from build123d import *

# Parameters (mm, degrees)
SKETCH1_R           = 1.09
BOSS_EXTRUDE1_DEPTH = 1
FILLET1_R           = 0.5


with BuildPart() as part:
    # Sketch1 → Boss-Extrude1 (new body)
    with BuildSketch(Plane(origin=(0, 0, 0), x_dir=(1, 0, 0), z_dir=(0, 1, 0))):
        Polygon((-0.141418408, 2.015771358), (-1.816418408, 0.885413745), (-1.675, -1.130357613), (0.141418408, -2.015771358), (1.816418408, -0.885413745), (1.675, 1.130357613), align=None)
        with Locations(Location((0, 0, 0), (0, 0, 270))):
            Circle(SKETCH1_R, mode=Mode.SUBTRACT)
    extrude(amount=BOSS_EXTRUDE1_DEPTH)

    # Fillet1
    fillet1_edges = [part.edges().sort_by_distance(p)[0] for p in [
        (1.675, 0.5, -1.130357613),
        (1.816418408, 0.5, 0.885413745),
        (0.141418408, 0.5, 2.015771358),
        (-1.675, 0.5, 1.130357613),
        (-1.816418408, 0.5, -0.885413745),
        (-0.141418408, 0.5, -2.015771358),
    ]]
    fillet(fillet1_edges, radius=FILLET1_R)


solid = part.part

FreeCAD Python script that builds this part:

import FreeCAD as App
import Part
import Sketcher

V = App.Vector
Q = App.Units.Quantity


def edges_at(feature, points):
    """Names of the edges that pass closest to the given points."""
    edges = feature.Shape.Edges
    near = lambda p: min(range(len(edges)), key=lambda i: edges[i].distToShape(Part.Vertex(*p))[0])
    return sorted({f"Edge{near(p) + 1}" for p in points})


def add_polygon(sketch, points):
    """Adds a closed chain of lines whose ends are joined by coincident constraints."""
    first, n = sketch.GeometryCount, len(points)
    for a, b in zip(points, points[1:] + points[:1]):
        sketch.addGeometry(Part.LineSegment(App.Vector(*a, 0), App.Vector(*b, 0)), False)
    for i in range(n):
        sketch.addConstraint(Sketcher.Constraint("Coincident", first + i, 2, first + (i + 1) % n, 1))

doc = App.newDocument("Part")
body = doc.addObject("PartDesign::Body", "Body")

sketch1 = body.newObject("Sketcher::SketchObject", "Sketch")
sketch1.AttachmentSupport = (doc.getObject("XZ_Plane"), [""])
sketch1.MapMode = "FlatFace"
add_polygon(sketch1, [(-0.1, -2), (-1.8, -0.9), (-1.7, 1.1), (0.1, 2), (1.8, 0.9), (1.7, -1.1)])
sketch1.addGeometry(Part.Circle(V(0, 0, 0), V(0, 0, 1), 1.1), False)
sketch1.addConstraint([
    Sketcher.Constraint("Coincident", 6, 3, -1, 1),
    Sketcher.Constraint("Symmetric", 0, 2, 3, 2, -1, 1),
    Sketcher.Constraint("Symmetric", 1, 2, 4, 2, -1, 1),
    Sketcher.Constraint("Symmetric", 2, 2, 5, 2, -1, 1),
    Sketcher.Constraint("Equal", 0, 1),
    Sketcher.Constraint("Equal", 1, 2),
    Sketcher.Constraint("Diameter", 6, Q("2.18 mm")),
    Sketcher.Constraint("DistanceX", 1, 2, 4, 2, Q("3.35 mm")),
    Sketcher.Constraint("DistanceX", 2, 2, 3, 2, Q("1.675 mm")),
    Sketcher.Constraint("DistanceX", 0, 2, -1, 1, Q("1.816418 mm")),
    Sketcher.Constraint("DistanceY", -1, 1, 2, 2, Q("2.015771 mm")),
])
pad1 = body.newObject("PartDesign::Pad", "Pad")
pad1.Profile = sketch1
pad1.Length = 1
pad1.Reversed = True
doc.recompute()

fillet = body.newObject("PartDesign::Fillet", "Fillet")
fillet.Base = (pad1, edges_at(pad1, [
    (1.675, 0.5, -1.13),
    (1.816, 0.5, 0.885),
    (0.141, 0.5, 2.016),
    (-1.675, 0.5, 1.13),
    (-1.816, 0.5, -0.885),
    (-0.141, 0.5, -2.016),
]))
fillet.Radius = 0.5

doc.recompute()
